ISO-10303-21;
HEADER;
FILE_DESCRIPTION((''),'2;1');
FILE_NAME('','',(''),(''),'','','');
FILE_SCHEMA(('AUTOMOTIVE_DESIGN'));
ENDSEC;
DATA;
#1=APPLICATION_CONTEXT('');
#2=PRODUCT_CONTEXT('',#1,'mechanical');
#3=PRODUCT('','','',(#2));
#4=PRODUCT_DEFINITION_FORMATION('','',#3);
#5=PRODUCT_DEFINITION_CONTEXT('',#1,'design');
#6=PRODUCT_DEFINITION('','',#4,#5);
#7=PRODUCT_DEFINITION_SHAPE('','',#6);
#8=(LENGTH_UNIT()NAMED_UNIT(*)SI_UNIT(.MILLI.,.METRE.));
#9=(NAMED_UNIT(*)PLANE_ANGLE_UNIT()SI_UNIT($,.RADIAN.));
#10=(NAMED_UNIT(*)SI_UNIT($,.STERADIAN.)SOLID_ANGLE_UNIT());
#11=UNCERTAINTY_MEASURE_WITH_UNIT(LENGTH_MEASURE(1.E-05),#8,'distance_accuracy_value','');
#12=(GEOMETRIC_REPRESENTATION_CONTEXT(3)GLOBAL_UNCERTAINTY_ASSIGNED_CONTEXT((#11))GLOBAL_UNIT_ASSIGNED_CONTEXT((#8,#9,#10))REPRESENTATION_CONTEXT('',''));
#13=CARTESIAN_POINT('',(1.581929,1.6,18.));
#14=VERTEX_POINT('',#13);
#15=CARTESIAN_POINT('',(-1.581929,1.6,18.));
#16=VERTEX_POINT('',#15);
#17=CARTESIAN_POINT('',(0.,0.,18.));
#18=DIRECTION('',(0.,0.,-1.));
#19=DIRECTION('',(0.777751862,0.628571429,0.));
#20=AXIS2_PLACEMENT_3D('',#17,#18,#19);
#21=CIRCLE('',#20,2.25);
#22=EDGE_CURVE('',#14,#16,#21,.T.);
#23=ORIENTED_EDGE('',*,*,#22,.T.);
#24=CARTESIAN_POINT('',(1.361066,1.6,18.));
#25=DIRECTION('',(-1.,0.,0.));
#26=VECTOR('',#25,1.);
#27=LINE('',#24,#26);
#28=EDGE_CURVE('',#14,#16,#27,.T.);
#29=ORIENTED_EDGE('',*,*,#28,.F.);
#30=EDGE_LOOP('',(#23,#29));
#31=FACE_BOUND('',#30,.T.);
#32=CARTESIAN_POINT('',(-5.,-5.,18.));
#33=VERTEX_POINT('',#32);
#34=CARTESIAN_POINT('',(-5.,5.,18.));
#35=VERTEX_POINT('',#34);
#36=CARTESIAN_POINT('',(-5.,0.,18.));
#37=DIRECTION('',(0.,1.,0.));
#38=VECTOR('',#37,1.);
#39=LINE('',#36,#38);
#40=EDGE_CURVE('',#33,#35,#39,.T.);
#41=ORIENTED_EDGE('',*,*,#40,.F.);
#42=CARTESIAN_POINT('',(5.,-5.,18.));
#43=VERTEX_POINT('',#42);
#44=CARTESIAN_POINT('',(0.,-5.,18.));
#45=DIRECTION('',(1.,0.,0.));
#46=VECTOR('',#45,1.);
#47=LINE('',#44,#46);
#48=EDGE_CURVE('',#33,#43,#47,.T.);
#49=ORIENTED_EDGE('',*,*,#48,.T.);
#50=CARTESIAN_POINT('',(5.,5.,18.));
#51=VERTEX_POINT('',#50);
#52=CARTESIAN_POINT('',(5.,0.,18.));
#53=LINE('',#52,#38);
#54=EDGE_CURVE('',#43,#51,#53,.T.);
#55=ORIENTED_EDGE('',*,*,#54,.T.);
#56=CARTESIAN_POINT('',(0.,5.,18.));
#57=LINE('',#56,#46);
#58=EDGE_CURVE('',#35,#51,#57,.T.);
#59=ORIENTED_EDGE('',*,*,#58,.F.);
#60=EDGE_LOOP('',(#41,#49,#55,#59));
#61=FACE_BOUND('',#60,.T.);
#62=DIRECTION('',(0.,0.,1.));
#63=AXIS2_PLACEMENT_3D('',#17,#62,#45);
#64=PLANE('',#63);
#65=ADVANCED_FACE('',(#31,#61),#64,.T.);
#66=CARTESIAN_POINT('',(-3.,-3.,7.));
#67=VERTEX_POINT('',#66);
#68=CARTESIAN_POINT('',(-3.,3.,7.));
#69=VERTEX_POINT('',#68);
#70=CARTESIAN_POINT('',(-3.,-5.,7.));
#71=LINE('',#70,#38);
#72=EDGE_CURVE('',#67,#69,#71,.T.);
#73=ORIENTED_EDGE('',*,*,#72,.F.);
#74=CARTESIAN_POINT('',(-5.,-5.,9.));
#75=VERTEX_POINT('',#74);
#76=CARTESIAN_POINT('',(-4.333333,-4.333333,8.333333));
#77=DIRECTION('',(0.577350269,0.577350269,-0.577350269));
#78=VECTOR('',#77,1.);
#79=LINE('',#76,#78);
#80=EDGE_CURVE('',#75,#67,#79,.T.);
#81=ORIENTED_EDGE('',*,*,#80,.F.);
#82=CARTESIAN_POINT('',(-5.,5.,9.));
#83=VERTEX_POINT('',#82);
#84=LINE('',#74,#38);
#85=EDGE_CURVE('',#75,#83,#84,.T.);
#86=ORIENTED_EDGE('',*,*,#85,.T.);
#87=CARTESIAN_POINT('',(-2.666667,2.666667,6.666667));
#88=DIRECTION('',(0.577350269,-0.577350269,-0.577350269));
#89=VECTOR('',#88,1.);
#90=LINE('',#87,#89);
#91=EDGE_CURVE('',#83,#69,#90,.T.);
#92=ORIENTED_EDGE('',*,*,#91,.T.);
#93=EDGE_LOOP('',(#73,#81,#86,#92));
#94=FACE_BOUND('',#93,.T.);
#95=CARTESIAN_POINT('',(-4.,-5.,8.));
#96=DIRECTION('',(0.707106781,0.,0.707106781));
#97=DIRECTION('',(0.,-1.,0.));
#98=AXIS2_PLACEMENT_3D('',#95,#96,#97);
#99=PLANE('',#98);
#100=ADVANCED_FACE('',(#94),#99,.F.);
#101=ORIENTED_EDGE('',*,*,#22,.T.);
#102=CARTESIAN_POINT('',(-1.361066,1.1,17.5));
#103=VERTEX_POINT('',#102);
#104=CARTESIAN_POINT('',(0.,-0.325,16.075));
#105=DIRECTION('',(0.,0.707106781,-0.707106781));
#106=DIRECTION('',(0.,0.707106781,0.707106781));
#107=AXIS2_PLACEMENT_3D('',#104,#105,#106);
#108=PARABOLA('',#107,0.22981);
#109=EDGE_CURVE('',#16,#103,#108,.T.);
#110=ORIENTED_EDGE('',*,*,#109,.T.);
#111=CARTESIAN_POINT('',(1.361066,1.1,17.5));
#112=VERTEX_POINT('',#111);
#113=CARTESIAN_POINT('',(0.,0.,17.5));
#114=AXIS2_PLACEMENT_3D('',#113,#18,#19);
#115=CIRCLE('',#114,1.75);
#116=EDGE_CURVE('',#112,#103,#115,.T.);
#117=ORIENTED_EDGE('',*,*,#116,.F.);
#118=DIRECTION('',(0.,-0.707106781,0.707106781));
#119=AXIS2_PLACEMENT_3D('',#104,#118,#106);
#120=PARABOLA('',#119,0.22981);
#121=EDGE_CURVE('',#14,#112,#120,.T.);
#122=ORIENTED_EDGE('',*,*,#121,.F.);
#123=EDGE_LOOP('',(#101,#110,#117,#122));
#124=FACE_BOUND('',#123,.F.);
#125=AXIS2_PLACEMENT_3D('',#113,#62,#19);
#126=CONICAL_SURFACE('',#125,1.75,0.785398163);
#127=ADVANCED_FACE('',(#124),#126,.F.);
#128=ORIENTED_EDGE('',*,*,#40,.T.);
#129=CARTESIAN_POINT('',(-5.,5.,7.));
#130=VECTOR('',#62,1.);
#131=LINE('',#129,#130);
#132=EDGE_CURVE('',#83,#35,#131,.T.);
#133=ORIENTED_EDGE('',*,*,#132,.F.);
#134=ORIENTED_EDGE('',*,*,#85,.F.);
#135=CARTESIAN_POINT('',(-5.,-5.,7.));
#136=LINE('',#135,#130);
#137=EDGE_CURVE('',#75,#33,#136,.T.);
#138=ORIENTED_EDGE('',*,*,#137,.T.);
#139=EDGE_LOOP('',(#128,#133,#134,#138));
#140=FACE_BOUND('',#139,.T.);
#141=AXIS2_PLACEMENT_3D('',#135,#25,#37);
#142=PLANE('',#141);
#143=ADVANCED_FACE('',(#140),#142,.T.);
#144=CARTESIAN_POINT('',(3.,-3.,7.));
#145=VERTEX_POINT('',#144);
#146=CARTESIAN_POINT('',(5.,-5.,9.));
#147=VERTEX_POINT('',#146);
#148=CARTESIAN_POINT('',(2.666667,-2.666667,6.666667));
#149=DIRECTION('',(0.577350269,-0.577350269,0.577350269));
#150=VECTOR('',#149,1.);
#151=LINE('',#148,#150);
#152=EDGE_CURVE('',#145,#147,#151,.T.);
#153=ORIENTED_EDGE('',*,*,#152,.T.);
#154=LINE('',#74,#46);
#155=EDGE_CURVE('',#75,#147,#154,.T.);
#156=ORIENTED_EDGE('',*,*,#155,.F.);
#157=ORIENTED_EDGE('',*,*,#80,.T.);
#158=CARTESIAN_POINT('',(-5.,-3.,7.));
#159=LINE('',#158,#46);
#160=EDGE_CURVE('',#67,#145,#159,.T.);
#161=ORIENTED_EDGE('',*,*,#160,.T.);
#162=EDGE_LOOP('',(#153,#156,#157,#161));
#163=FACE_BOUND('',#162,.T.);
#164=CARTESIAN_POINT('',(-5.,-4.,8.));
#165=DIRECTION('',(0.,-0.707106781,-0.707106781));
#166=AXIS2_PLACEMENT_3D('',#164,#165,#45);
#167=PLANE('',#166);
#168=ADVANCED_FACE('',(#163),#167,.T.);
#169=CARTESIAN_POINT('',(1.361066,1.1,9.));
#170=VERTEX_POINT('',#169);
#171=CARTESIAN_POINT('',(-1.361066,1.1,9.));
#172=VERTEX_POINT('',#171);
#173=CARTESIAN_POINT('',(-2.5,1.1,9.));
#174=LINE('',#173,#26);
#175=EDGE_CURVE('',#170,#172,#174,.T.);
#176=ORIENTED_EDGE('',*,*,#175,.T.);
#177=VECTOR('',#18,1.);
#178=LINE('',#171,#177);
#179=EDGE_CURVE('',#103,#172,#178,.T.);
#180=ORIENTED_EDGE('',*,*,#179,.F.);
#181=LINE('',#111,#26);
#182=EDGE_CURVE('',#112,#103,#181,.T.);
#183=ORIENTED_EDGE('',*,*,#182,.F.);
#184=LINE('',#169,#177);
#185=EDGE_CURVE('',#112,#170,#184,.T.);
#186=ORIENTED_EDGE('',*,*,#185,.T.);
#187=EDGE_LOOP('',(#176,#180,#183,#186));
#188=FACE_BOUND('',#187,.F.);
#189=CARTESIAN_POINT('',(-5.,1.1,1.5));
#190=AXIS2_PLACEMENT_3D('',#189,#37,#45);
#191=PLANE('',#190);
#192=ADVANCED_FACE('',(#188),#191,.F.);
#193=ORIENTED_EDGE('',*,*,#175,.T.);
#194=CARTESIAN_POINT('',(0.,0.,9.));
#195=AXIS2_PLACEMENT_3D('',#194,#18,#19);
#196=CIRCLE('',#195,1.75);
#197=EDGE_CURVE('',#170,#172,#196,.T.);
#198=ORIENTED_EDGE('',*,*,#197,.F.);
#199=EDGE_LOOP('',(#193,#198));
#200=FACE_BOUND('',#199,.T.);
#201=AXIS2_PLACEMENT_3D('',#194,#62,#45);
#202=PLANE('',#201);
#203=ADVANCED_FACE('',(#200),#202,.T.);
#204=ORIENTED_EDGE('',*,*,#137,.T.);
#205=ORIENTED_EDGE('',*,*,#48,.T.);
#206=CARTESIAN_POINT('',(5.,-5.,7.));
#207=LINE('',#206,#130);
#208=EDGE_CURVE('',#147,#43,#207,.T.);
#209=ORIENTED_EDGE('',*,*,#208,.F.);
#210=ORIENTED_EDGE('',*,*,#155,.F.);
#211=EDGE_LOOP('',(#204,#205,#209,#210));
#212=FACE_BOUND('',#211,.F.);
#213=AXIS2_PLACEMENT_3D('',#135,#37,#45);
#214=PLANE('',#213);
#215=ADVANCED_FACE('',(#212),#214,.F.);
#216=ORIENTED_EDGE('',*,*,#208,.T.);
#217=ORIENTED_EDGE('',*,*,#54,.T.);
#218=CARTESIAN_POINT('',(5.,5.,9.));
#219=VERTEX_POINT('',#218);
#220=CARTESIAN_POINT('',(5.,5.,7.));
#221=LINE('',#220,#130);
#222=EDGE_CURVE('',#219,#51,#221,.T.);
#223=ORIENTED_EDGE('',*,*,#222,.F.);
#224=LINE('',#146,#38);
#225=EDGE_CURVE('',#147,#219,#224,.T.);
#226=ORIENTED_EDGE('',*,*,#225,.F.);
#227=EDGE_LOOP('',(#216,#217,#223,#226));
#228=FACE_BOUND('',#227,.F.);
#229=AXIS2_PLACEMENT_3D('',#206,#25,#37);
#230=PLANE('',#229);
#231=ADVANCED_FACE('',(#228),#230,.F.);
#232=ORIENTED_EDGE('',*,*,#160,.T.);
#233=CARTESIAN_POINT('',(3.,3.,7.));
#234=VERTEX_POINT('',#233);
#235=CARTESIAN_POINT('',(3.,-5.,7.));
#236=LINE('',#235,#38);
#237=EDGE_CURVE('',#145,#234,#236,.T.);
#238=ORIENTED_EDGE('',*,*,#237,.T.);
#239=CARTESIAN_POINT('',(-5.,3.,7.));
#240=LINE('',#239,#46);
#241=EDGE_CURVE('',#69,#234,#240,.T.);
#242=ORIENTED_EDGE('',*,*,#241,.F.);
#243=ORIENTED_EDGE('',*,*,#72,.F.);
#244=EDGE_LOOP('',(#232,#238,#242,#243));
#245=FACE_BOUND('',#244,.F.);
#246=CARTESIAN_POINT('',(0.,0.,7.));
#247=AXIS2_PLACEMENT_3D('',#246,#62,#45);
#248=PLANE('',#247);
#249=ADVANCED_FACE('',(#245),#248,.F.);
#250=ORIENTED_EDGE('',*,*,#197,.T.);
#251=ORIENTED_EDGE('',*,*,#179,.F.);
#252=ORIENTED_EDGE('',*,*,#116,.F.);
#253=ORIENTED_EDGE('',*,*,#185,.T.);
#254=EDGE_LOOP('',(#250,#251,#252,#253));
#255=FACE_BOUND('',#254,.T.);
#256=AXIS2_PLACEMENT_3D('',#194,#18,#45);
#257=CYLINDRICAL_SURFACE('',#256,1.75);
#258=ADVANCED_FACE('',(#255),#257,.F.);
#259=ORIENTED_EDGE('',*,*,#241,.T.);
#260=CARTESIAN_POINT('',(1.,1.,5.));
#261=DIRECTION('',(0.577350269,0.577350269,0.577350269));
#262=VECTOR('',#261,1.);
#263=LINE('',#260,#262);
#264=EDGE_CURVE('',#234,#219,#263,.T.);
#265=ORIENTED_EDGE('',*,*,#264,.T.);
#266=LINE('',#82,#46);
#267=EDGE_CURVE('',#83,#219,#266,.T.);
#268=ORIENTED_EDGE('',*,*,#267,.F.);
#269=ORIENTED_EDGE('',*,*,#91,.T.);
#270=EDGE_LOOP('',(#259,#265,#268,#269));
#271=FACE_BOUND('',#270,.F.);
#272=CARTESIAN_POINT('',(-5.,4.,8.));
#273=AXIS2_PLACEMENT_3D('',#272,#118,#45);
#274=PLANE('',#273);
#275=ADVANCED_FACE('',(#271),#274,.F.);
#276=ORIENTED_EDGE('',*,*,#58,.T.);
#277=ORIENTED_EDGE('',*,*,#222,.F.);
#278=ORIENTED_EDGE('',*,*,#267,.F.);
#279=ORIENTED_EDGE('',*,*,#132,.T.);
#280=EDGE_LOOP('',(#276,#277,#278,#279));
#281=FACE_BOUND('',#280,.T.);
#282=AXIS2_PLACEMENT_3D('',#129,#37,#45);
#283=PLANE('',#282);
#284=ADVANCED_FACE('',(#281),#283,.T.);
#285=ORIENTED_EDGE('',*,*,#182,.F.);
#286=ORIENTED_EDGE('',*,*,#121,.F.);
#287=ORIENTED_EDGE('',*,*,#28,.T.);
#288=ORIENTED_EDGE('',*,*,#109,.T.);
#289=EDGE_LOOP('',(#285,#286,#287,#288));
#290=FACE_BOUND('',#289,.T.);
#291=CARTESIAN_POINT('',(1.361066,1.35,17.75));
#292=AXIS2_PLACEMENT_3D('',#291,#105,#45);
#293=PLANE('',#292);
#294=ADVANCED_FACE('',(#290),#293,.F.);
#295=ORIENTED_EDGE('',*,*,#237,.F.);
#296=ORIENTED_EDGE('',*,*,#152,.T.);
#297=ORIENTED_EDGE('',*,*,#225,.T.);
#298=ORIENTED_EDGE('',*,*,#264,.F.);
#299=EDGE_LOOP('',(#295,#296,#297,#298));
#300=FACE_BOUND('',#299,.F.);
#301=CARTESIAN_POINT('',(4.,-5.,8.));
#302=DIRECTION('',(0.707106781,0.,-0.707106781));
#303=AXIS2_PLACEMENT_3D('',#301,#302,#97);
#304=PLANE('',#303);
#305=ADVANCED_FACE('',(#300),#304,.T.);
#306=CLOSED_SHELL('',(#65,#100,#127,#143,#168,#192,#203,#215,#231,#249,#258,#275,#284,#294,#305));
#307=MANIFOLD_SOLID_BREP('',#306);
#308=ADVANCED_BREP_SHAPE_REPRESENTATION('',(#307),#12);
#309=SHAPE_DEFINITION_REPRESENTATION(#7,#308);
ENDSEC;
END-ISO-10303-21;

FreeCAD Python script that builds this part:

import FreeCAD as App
import Part
import Sketcher

V = App.Vector


def edges_at(feature, points):
    """Names of the edges that pass closest to the given points."""
    edges = feature.Shape.Edges
    near = lambda p: min(range(len(edges)), key=lambda i: edges[i].distToShape(Part.Vertex(*p))[0])
    return sorted({f"Edge{near(p) + 1}" for p in points})

doc = App.newDocument("Part")
body = doc.addObject("PartDesign::Body", "Body")

# Sketch on XY plane
sketch1 = doc.addObject("Sketcher::SketchObject", "Sketch")
body.addObject(sketch1)
sketch1.AttachmentSupport = (doc.XY_Plane, [""])
sketch1.MapMode = "FlatFace"
sketch1.AttachmentOffset = App.Placement(V(0, 0, 1.5), App.Rotation())
sketch1.addGeometry([
    Part.LineSegment(V(-5, 11, 0), V(-5, 1, 0)),
    Part.LineSegment(V(-5, 1, 0), V(5, 1, 0)),
    Part.LineSegment(V(5, 1, 0), V(5, 11, 0)),
    Part.LineSegment(V(5, 11, 0), V(-5, 11, 0)),
], False)
sketch1.addConstraint([
    Sketcher.Constraint("Coincident", 0, 2, 1, 1),
    Sketcher.Constraint("Coincident", 1, 2, 2, 1),
    Sketcher.Constraint("Coincident", 2, 2, 3, 1),
    Sketcher.Constraint("Coincident", 3, 2, 0, 1),
    Sketcher.Constraint("Vertical", 0),
    Sketcher.Constraint("Horizontal", 1),
    Sketcher.Constraint("Vertical", 2),
    Sketcher.Constraint("Horizontal", 3),
    Sketcher.Constraint("Equal", 3, 0),
    Sketcher.Constraint("DistanceX", 1, 1, 1, 2, 10.0),
    Sketcher.Constraint("DistanceX", 0, 2, -1, 1, 5.0),
    Sketcher.Constraint("DistanceY", -1, 1, 0, 2, 1.1),
])
pad1 = doc.addObject("PartDesign::Pad", "Pad")
body.addObject(pad1)
pad1.Profile = sketch1
pad1.Length = 19
body2 = doc.addObject("PartDesign::Body", "Body001")

# Sketch on XY plane
sketch2 = doc.addObject("Sketcher::SketchObject", "Sketch001")
body2.addObject(sketch2)
sketch2.AttachmentSupport = (doc.getObject("XY_Plane001"), [""])
sketch2.MapMode = "FlatFace"
sketch2.AttachmentOffset = App.Placement(V(0, 0, 9), App.Rotation())
sketch2.addGeometry(Part.Circle(V(0, 0, 0), V(0, 0, 1), 1.8), False)
sketch2.addConstraint([
    Sketcher.Constraint("Coincident", 0, 3, -1, 1),
    Sketcher.Constraint("Diameter", 0, 3.5),
])
pad2 = doc.addObject("PartDesign::Pad", "Pad001")
body2.addObject(pad2)
pad2.Profile = sketch2
pad2.Length = 17
doc.recompute()

boolean = doc.addObject("PartDesign::Boolean", "Boolean")
body2.addObject(boolean)
boolean.Type = "Cut"
boolean.addObjects([body])
body3 = doc.addObject("PartDesign::Body", "Body002")

# Sketch on XY plane
sketch3 = doc.addObject("Sketcher::SketchObject", "Sketch002")
body3.addObject(sketch3)
sketch3.AttachmentSupport = (doc.getObject("XY_Plane002"), [""])
sketch3.MapMode = "FlatFace"
sketch3.AttachmentOffset = App.Placement(V(0, 0, 7), App.Rotation())
sketch3.addGeometry([
    Part.LineSegment(V(-5, 5, 0), V(-5, -5, 0)),
    Part.LineSegment(V(-5, -5, 0), V(5, -5, 0)),
    Part.LineSegment(V(5, -5, 0), V(5, 5, 0)),
    Part.LineSegment(V(5, 5, 0), V(-5, 5, 0)),
], False)
sketch3.addConstraint([
    Sketcher.Constraint("Coincident", 0, 2, 1, 1),
    Sketcher.Constraint("Coincident", 1, 2, 2, 1),
    Sketcher.Constraint("Coincident", 2, 2, 3, 1),
    Sketcher.Constraint("Coincident", 3, 2, 0, 1),
    Sketcher.Constraint("Vertical", 0),
    Sketcher.Constraint("Horizontal", 1),
    Sketcher.Constraint("Vertical", 2),
    Sketcher.Constraint("Horizontal", 3),
    Sketcher.Constraint("Symmetric", 0, 2, 2, 2, -1, 1),
    Sketcher.Constraint("Equal", 3, 0),
    Sketcher.Constraint("DistanceX", 1, 1, 1, 2, 10.0),
])
pad3 = doc.addObject("PartDesign::Pad", "Pad002")
body3.addObject(pad3)
pad3.Profile = sketch3
pad3.Length = 11
doc.recompute()

boolean2 = doc.addObject("PartDesign::Boolean", "Boolean001")
body3.addObject(boolean2)
boolean2.Type = "Cut"
boolean2.addObjects([body2])
doc.recompute()

chamfer = doc.addObject("PartDesign::Chamfer", "Chamfer")
body3.addObject(chamfer)
chamfer.Base = (boolean2, edges_at(boolean2, [
    (-5, 0, 7),
    (0, -5, 7),
    (0, 5, 7),
    (5, 0, 7),
]))
chamfer.Size = 2
doc.recompute()

chamfer2 = doc.addObject("PartDesign::Chamfer", "Chamfer001")
body3.addObject(chamfer2)
chamfer2.Base = (chamfer, edges_at(chamfer, [(0, -1.75, 18), (0, 1.1, 18), (0, -1.75, 18)]))
chamfer2.Size = 0.5

doc.recompute()
